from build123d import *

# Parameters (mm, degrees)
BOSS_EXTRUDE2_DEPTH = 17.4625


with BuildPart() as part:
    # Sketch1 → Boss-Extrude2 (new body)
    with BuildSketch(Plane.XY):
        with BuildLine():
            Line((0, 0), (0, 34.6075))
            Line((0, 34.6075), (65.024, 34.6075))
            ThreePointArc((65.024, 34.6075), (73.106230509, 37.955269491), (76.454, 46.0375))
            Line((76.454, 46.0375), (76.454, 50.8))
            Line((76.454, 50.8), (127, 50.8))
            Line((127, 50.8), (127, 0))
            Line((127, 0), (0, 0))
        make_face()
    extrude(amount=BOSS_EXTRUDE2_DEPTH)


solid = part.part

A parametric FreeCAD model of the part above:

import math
import FreeCAD as App
import Part
import Sketcher
from FreeCAD import Vector
Q = App.Units.Quantity

doc = App.newDocument("Part")
body = doc.addObject("PartDesign::Body", "Body")

sketch1 = body.newObject("Sketcher::SketchObject", "Sketch")
sketch1.AttachmentSupport = (doc.getObject("XY_Plane"), [""])
sketch1.MapMode = "FlatFace"
sketch1.addGeometry([
    Part.LineSegment(Vector(0, 34.6, 0), Vector(0, 0, 0)),
    Part.LineSegment(Vector(0, 0, 0), Vector(127, 0, 0)),
    Part.LineSegment(Vector(127, 0, 0), Vector(127, 50.8, 0)),
    Part.LineSegment(Vector(127, 50.8, 0), Vector(76.5, 50.8, 0)),
    Part.LineSegment(Vector(76.5, 50.8, 0), Vector(76.5, 46, 0)),
    Part.ArcOfCircle(Part.Circle(Vector(65, 46, 0), Vector(0, 0, 1), 11.4), math.radians(-90), math.radians(0)),
    Part.LineSegment(Vector(65, 34.6, 0), Vector(0, 34.6, 0)),
], False)
sketch1.addConstraint([
    Sketcher.Constraint("Coincident", 0, 2, 1, 1),
    Sketcher.Constraint("Coincident", 1, 2, 2, 1),
    Sketcher.Constraint("Coincident", 2, 2, 3, 1),
    Sketcher.Constraint("Coincident", 3, 2, 4, 1),
    Sketcher.Constraint("Tangent", 4, 2, 5, 2),
    Sketcher.Constraint("Tangent", 5, 1, 6, 1),
    Sketcher.Constraint("Coincident", 6, 2, 0, 1),
    Sketcher.Constraint("Vertical", 0),
    Sketcher.Constraint("Horizontal", 1),
    Sketcher.Constraint("Vertical", 2),
    Sketcher.Constraint("Horizontal", 3),
    Sketcher.Constraint("Vertical", 4),
    Sketcher.Constraint("Horizontal", 6),
    Sketcher.Constraint("Coincident", 0, 2, -1, 1),
    Sketcher.Constraint("DistanceX", 1, 1, 1, 2, Q("5 in")),
    Sketcher.Constraint("DistanceY", 2, 1, 2, 2, Q("2 in")),
    Sketcher.Constraint("Radius", 5, Q("0.45 in")),
    Sketcher.Constraint("DistanceX", 3, 2, 3, 1, Q("1.99 in")),
    Sketcher.Constraint("DistanceY", 4, 2, 4, 1, Q("0.1875 in")),
])
pad1 = body.newObject("PartDesign::Pad", "Pad")
pad1.Profile = sketch1
pad1.Length = Q("0.6875 in")

doc.recompute()
